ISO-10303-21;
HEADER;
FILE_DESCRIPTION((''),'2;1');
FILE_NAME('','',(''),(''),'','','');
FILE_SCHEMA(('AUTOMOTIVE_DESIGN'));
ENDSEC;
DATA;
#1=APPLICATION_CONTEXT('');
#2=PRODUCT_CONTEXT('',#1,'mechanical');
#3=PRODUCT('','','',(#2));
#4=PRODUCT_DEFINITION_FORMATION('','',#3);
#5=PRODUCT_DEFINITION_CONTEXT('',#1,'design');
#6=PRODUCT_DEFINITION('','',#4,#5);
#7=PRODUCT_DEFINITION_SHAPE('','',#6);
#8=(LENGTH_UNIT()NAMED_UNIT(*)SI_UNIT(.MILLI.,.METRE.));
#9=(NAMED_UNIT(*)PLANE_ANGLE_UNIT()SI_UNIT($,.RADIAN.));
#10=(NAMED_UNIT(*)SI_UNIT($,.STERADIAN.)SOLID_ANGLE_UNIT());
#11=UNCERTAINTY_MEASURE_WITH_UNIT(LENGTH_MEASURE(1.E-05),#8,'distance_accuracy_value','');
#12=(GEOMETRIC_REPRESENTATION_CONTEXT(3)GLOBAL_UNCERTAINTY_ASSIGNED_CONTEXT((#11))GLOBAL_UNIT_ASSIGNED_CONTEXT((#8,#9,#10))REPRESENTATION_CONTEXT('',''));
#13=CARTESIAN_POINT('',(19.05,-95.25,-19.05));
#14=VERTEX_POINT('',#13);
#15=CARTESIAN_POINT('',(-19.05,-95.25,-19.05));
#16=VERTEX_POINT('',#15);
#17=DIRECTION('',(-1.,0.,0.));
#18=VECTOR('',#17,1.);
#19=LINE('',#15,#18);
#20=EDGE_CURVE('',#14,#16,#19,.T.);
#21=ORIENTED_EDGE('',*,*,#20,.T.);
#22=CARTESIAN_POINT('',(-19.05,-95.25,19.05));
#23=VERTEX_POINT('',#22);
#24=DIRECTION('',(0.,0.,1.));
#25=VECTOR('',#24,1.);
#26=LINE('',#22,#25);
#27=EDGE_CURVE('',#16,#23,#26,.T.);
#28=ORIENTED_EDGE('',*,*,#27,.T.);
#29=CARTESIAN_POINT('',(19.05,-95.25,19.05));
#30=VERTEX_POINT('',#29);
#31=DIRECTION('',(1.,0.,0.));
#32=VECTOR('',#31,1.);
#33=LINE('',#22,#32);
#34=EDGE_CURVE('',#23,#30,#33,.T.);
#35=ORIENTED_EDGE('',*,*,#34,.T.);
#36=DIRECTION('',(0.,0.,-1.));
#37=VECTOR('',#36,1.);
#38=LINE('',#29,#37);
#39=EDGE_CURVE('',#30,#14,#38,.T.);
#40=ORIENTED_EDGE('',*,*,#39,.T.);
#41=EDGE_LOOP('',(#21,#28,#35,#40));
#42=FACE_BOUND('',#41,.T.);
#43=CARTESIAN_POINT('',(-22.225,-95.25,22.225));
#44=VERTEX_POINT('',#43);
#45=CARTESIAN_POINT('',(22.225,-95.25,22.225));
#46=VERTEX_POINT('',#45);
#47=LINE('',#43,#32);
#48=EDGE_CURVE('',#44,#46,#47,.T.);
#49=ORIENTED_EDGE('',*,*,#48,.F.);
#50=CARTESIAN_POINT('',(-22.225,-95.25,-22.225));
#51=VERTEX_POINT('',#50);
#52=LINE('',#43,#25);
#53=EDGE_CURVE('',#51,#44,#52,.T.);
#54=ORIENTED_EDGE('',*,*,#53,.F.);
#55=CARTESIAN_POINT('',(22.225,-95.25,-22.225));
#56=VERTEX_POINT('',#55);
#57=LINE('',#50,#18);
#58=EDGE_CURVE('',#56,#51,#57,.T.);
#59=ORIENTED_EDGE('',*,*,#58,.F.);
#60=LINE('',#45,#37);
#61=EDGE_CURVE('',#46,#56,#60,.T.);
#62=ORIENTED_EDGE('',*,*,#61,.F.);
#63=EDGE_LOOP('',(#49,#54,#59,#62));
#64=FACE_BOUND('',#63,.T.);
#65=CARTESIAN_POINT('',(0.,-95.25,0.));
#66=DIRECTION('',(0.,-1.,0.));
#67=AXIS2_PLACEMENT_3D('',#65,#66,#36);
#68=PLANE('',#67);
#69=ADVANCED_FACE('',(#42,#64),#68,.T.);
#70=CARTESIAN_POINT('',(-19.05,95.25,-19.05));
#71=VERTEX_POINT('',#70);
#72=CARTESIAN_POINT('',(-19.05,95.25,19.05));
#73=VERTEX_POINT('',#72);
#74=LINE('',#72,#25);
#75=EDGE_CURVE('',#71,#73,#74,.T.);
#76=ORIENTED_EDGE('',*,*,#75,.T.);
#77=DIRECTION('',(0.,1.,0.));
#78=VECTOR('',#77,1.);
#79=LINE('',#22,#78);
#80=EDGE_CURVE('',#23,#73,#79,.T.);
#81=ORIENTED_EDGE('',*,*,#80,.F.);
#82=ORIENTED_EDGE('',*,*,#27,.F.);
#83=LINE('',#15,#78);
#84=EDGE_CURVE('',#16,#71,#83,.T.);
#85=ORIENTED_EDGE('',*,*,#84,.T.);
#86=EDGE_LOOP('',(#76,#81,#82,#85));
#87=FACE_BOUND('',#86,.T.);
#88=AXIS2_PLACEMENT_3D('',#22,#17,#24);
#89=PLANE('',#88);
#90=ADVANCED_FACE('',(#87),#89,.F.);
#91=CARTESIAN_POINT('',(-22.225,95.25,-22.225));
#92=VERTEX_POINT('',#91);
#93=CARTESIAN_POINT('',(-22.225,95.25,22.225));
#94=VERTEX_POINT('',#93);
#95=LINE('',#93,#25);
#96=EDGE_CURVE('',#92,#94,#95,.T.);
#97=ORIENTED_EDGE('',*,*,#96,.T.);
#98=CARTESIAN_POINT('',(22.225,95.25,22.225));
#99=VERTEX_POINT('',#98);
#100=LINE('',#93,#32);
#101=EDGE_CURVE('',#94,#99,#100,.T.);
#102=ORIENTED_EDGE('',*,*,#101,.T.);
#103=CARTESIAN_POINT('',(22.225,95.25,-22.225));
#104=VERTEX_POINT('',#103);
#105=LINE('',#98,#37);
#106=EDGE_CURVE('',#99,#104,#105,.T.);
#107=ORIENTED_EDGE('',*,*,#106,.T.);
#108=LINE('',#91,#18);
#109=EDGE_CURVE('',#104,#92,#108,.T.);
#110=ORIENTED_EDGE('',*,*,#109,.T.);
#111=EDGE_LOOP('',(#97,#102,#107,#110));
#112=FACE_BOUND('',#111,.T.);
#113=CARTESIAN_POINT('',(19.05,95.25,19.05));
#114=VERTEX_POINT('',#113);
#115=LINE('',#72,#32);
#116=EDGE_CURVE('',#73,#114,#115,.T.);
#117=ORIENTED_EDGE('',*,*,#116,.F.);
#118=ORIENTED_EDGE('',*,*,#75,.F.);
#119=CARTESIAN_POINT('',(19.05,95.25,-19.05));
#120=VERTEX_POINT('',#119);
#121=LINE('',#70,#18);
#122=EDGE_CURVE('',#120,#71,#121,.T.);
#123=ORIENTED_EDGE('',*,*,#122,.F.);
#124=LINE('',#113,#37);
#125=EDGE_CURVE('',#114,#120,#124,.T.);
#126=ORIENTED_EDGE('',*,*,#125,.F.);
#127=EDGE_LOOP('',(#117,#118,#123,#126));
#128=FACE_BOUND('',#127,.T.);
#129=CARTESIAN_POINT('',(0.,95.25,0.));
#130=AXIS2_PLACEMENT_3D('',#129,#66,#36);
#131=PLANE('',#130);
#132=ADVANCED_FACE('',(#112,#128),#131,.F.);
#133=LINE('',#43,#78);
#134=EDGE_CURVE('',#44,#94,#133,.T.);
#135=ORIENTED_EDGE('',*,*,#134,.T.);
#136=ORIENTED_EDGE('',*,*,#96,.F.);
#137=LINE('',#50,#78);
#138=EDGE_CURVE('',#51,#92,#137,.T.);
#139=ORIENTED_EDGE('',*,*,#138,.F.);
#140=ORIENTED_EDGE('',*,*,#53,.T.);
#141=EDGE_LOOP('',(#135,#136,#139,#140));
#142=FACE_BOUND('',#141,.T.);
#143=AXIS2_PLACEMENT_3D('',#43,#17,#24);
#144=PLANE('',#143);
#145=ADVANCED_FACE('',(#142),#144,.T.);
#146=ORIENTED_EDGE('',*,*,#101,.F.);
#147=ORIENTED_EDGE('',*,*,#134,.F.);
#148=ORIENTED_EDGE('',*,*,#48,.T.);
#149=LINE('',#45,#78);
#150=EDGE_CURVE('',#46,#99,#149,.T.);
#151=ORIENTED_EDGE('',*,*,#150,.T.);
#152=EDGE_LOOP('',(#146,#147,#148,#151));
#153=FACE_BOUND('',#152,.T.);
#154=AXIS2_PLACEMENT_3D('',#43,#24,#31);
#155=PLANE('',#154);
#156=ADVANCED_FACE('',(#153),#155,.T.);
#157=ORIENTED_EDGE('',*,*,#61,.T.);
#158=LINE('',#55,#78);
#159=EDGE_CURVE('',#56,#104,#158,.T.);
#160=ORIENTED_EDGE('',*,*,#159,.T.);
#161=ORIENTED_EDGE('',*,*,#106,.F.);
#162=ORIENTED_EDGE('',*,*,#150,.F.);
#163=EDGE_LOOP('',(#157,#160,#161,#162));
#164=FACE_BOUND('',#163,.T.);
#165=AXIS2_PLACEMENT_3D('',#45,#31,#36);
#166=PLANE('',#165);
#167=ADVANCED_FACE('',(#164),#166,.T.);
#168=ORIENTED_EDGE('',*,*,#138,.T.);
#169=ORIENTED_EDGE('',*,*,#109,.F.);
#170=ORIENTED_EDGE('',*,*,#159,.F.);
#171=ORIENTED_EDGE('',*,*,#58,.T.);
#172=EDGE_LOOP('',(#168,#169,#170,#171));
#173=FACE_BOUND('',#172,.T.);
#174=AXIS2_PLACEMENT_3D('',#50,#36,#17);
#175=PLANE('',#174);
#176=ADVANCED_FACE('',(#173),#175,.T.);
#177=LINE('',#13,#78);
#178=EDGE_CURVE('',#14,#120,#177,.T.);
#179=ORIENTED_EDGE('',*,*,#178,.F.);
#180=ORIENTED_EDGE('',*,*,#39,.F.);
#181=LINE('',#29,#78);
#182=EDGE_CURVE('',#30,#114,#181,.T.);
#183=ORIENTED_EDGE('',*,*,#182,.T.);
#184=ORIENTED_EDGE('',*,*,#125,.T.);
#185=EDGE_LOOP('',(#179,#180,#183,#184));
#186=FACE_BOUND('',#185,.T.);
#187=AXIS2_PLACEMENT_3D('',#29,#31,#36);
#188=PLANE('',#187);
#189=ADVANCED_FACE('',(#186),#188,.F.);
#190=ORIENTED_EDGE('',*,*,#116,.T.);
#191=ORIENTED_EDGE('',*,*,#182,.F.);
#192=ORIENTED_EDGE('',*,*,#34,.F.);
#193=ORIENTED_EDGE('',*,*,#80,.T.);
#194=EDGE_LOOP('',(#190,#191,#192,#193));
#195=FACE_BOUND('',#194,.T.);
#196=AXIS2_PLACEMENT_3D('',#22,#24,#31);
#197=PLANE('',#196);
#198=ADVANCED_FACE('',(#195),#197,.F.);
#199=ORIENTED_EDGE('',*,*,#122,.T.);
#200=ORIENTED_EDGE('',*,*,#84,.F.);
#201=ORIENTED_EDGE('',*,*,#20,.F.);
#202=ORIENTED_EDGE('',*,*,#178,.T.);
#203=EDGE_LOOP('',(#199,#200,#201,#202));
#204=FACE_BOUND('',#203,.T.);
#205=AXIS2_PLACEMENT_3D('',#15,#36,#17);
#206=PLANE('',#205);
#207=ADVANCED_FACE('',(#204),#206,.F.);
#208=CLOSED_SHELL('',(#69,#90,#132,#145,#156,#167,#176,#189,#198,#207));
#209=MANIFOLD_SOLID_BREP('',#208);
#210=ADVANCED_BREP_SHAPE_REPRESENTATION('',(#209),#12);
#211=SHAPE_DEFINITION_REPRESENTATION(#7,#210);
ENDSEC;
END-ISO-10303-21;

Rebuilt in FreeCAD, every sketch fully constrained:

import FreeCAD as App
import Part
import Sketcher
from FreeCAD import Vector
Q = App.Units.Quantity

doc = App.newDocument("Part")
body = doc.addObject("PartDesign::Body", "Body")

# Sketch on XZ plane
sketch1 = body.newObject("Sketcher::SketchObject", "Sketch")
sketch1.AttachmentSupport = (doc.getObject("XZ_Plane"), [""])
sketch1.MapMode = "FlatFace"
sketch1.addGeometry(Part.LineSegment(Vector(-22, -22, 0), Vector(-22, 22, 0)), False)
sketch1.addGeometry(Part.LineSegment(Vector(-22, 22, 0), Vector(22, 22, 0)), False)
sketch1.addGeometry(Part.LineSegment(Vector(22, 22, 0), Vector(22, -22, 0)), False)
sketch1.addGeometry(Part.LineSegment(Vector(22, -22, 0), Vector(-22, -22, 0)), False)
sketch1.addGeometry(Part.LineSegment(Vector(19, 19, 0), Vector(-19, 19, 0)), False)
sketch1.addGeometry(Part.LineSegment(Vector(-19, 19, 0), Vector(-19, -19, 0)), False)
sketch1.addGeometry(Part.LineSegment(Vector(-19, -19, 0), Vector(19, -19, 0)), False)
sketch1.addGeometry(Part.LineSegment(Vector(19, -19, 0), Vector(19, 19, 0)), False)
sketch1.addConstraint(Sketcher.Constraint("Coincident", 0, 2, 1, 1))
sketch1.addConstraint(Sketcher.Constraint("Coincident", 1, 2, 2, 1))
sketch1.addConstraint(Sketcher.Constraint("Coincident", 2, 2, 3, 1))
sketch1.addConstraint(Sketcher.Constraint("Coincident", 3, 2, 0, 1))
sketch1.addConstraint(Sketcher.Constraint("Coincident", 4, 2, 5, 1))
sketch1.addConstraint(Sketcher.Constraint("Coincident", 5, 2, 6, 1))
sketch1.addConstraint(Sketcher.Constraint("Coincident", 6, 2, 7, 1))
sketch1.addConstraint(Sketcher.Constraint("Coincident", 7, 2, 4, 1))
sketch1.addConstraint(Sketcher.Constraint("Vertical", 0))
sketch1.addConstraint(Sketcher.Constraint("Horizontal", 1))
sketch1.addConstraint(Sketcher.Constraint("Vertical", 2))
sketch1.addConstraint(Sketcher.Constraint("Horizontal", 3))
sketch1.addConstraint(Sketcher.Constraint("Horizontal", 4))
sketch1.addConstraint(Sketcher.Constraint("Vertical", 5))
sketch1.addConstraint(Sketcher.Constraint("Horizontal", 6))
sketch1.addConstraint(Sketcher.Constraint("Vertical", 7))
sketch1.addConstraint(Sketcher.Constraint("Symmetric", 0, 2, 2, 2, -1, 1))
sketch1.addConstraint(Sketcher.Constraint("Symmetric", 4, 2, 6, 2, -1, 1))
sketch1.addConstraint(Sketcher.Constraint("Equal", 3, 0))
sketch1.addConstraint(Sketcher.Constraint("Equal", 6, 5))
sketch1.addConstraint(Sketcher.Constraint("DistanceX", 4, 2, 4, 1, Q("1.5 in")))
sketch1.addConstraint(Sketcher.Constraint("DistanceX", 1, 1, 1, 2, Q("1.75 in")))
pad1 = body.newObject("PartDesign::Pad", "Pad")
pad1.Profile = sketch1
pad1.Type = "TwoLengths"
pad1.Length = Q("3.75 in")
pad1.Length2 = Q("3.75 in")
pad1.Reversed = True

doc.recompute()
